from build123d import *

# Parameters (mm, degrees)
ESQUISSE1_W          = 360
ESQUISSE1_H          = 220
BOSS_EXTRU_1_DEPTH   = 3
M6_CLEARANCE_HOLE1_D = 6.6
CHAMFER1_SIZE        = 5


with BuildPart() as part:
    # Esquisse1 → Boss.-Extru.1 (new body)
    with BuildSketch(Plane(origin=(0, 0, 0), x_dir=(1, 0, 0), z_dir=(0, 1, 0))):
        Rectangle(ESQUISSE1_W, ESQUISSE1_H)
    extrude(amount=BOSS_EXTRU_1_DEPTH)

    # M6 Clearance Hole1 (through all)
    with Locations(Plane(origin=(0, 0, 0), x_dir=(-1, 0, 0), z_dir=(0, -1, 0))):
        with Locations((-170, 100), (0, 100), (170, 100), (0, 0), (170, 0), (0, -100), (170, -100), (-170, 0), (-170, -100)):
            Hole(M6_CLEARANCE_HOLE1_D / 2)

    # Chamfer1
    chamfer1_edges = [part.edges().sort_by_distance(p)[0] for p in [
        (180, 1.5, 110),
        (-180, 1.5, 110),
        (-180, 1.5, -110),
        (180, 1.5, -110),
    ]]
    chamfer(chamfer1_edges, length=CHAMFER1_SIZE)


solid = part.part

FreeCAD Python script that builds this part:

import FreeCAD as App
import Part
import Sketcher
Q = App.Units.Quantity


def edges_at(feature, points):
    """Names of the edges that pass closest to the given points."""
    edges = feature.Shape.Edges
    near = lambda p: min(range(len(edges)), key=lambda i: edges[i].distToShape(Part.Vertex(*p))[0])
    return sorted({f"Edge{near(p) + 1}" for p in points})


def add_polygon(sketch, points):
    """Adds a closed chain of lines whose ends are joined by coincident constraints."""
    first, n = sketch.GeometryCount, len(points)
    for a, b in zip(points, points[1:] + points[:1]):
        sketch.addGeometry(Part.LineSegment(App.Vector(*a, 0), App.Vector(*b, 0)), False)
    for i in range(n):
        sketch.addConstraint(Sketcher.Constraint("Coincident", first + i, 2, first + (i + 1) % n, 1))

doc = App.newDocument("Part")
params = doc.addObject("Spreadsheet::Sheet", "Params")
for row, (alias, value) in enumerate([
    ("sketch1_width", "360 mm"),
    ("sketch1_height", "220 mm"),
    ("pad1_length", "3 mm"),
    ("sketch2_diameter", "6.6 mm"),
    ("hole_diameter", "6.6 mm"),
    ("chamfer_size", "5 mm"),
], start=1):
    params.set(f"A{row}", alias)
    params.set(f"B{row}", "=" + value)
    params.setAlias(f"B{row}", alias)

body = doc.addObject("PartDesign::Body", "Body")

sketch1 = body.newObject("Sketcher::SketchObject", "Sketch")
sketch1.AttachmentSupport = (doc.getObject("XZ_Plane"), [""])
sketch1.MapMode = "FlatFace"
add_polygon(sketch1, [(-180, -110), (-180, 110), (180, 110), (180, -110)])
sketch1.addConstraint([
    Sketcher.Constraint("Vertical", 0),
    Sketcher.Constraint("Horizontal", 1),
    Sketcher.Constraint("Vertical", 2),
    Sketcher.Constraint("Horizontal", 3),
    Sketcher.Constraint("Symmetric", 0, 2, 2, 2, -1, 1),
    Sketcher.Constraint("DistanceX", 1, 1, 1, 2, Q("360 mm")),
    Sketcher.Constraint("DistanceY", 0, 1, 0, 2, Q("220 mm")),
])
sketch1.setExpression("Constraints[9]", "Params.sketch1_width")
sketch1.setExpression("Constraints[10]", "Params.sketch1_height")
pad1 = body.newObject("PartDesign::Pad", "Pad")
pad1.Profile = sketch1
pad1.setExpression("Length", "Params.pad1_length")
pad1.Reversed = True

sketch2 = body.newObject("Sketcher::SketchObject", "Sketch001")
sketch2.AttachmentSupport = (doc.getObject("XZ_Plane"), [""])
sketch2.MapMode = "FlatFace"
sketch2.addGeometry([
    Part.Circle(App.Vector(170, -100, 0), App.Vector(0, 0, 1), 3.3),
    Part.Circle(App.Vector(0, -100, 0), App.Vector(0, 0, 1), 3.3),
    Part.Circle(App.Vector(-170, -100, 0), App.Vector(0, 0, 1), 3.3),
    Part.Circle(App.Vector(0, 0, 0), App.Vector(0, 0, 1), 3.3),
    Part.Circle(App.Vector(-170, 0, 0), App.Vector(0, 0, 1), 3.3),
    Part.Circle(App.Vector(0, 100, 0), App.Vector(0, 0, 1), 3.3),
    Part.Circle(App.Vector(-170, 100, 0), App.Vector(0, 0, 1), 3.3),
    Part.Circle(App.Vector(170, 0, 0), App.Vector(0, 0, 1), 3.3),
    Part.Circle(App.Vector(170, 100, 0), App.Vector(0, 0, 1), 3.3),
], False)
sketch2.addConstraint([
    Sketcher.Constraint("Coincident", 3, 3, -1, 1),
    Sketcher.Constraint("Equal", 0, 1),
    Sketcher.Constraint("Equal", 1, 2),
    Sketcher.Constraint("Equal", 2, 3),
    Sketcher.Constraint("Equal", 3, 4),
    Sketcher.Constraint("Equal", 4, 5),
    Sketcher.Constraint("Equal", 5, 6),
    Sketcher.Constraint("Equal", 6, 7),
    Sketcher.Constraint("Equal", 7, 8),
    Sketcher.Constraint("Symmetric", 1, 3, 5, 3, -1, 1),
    Sketcher.Constraint("Symmetric", 0, 3, 6, 3, -1, 1),
    Sketcher.Constraint("Symmetric", 4, 3, 7, 3, -1, 1),
    Sketcher.Constraint("Symmetric", 2, 3, 8, 3, -1, 1),
    Sketcher.Constraint("Symmetric", 0, 3, 2, 3, -2),
    Sketcher.Constraint("PointOnObject", 1, 3, -2),
    Sketcher.Constraint("PointOnObject", 4, 3, -1),
    Sketcher.Constraint("Horizontal", 0, 3, 1, 3),
    Sketcher.Constraint("Vertical", 2, 3, 4, 3),
    Sketcher.Constraint("Diameter", 0, Q("6.6 mm")),
    Sketcher.Constraint("DistanceX", -1, 1, 0, 3, Q("170 mm")),
    Sketcher.Constraint("DistanceY", 0, 3, -1, 1, Q("100 mm")),
])
sketch2.setExpression("Constraints[18]", "Params.sketch2_diameter")
doc.recompute()
hole = body.newObject("PartDesign::Hole", "Hole")
hole.Profile = sketch2
hole.ThreadType = "None"
hole.setExpression("Diameter", "Params.hole_diameter")
hole.DepthType = "ThroughAll"
doc.recompute()

chamfer = body.newObject("PartDesign::Chamfer", "Chamfer")
chamfer.Base = (hole, edges_at(hole, [
    (180, 1.5, 110),
    (-180, 1.5, 110),
    (-180, 1.5, -110),
    (180, 1.5, -110),
]))
chamfer.setExpression("Size", "Params.chamfer_size")

doc.recompute()
